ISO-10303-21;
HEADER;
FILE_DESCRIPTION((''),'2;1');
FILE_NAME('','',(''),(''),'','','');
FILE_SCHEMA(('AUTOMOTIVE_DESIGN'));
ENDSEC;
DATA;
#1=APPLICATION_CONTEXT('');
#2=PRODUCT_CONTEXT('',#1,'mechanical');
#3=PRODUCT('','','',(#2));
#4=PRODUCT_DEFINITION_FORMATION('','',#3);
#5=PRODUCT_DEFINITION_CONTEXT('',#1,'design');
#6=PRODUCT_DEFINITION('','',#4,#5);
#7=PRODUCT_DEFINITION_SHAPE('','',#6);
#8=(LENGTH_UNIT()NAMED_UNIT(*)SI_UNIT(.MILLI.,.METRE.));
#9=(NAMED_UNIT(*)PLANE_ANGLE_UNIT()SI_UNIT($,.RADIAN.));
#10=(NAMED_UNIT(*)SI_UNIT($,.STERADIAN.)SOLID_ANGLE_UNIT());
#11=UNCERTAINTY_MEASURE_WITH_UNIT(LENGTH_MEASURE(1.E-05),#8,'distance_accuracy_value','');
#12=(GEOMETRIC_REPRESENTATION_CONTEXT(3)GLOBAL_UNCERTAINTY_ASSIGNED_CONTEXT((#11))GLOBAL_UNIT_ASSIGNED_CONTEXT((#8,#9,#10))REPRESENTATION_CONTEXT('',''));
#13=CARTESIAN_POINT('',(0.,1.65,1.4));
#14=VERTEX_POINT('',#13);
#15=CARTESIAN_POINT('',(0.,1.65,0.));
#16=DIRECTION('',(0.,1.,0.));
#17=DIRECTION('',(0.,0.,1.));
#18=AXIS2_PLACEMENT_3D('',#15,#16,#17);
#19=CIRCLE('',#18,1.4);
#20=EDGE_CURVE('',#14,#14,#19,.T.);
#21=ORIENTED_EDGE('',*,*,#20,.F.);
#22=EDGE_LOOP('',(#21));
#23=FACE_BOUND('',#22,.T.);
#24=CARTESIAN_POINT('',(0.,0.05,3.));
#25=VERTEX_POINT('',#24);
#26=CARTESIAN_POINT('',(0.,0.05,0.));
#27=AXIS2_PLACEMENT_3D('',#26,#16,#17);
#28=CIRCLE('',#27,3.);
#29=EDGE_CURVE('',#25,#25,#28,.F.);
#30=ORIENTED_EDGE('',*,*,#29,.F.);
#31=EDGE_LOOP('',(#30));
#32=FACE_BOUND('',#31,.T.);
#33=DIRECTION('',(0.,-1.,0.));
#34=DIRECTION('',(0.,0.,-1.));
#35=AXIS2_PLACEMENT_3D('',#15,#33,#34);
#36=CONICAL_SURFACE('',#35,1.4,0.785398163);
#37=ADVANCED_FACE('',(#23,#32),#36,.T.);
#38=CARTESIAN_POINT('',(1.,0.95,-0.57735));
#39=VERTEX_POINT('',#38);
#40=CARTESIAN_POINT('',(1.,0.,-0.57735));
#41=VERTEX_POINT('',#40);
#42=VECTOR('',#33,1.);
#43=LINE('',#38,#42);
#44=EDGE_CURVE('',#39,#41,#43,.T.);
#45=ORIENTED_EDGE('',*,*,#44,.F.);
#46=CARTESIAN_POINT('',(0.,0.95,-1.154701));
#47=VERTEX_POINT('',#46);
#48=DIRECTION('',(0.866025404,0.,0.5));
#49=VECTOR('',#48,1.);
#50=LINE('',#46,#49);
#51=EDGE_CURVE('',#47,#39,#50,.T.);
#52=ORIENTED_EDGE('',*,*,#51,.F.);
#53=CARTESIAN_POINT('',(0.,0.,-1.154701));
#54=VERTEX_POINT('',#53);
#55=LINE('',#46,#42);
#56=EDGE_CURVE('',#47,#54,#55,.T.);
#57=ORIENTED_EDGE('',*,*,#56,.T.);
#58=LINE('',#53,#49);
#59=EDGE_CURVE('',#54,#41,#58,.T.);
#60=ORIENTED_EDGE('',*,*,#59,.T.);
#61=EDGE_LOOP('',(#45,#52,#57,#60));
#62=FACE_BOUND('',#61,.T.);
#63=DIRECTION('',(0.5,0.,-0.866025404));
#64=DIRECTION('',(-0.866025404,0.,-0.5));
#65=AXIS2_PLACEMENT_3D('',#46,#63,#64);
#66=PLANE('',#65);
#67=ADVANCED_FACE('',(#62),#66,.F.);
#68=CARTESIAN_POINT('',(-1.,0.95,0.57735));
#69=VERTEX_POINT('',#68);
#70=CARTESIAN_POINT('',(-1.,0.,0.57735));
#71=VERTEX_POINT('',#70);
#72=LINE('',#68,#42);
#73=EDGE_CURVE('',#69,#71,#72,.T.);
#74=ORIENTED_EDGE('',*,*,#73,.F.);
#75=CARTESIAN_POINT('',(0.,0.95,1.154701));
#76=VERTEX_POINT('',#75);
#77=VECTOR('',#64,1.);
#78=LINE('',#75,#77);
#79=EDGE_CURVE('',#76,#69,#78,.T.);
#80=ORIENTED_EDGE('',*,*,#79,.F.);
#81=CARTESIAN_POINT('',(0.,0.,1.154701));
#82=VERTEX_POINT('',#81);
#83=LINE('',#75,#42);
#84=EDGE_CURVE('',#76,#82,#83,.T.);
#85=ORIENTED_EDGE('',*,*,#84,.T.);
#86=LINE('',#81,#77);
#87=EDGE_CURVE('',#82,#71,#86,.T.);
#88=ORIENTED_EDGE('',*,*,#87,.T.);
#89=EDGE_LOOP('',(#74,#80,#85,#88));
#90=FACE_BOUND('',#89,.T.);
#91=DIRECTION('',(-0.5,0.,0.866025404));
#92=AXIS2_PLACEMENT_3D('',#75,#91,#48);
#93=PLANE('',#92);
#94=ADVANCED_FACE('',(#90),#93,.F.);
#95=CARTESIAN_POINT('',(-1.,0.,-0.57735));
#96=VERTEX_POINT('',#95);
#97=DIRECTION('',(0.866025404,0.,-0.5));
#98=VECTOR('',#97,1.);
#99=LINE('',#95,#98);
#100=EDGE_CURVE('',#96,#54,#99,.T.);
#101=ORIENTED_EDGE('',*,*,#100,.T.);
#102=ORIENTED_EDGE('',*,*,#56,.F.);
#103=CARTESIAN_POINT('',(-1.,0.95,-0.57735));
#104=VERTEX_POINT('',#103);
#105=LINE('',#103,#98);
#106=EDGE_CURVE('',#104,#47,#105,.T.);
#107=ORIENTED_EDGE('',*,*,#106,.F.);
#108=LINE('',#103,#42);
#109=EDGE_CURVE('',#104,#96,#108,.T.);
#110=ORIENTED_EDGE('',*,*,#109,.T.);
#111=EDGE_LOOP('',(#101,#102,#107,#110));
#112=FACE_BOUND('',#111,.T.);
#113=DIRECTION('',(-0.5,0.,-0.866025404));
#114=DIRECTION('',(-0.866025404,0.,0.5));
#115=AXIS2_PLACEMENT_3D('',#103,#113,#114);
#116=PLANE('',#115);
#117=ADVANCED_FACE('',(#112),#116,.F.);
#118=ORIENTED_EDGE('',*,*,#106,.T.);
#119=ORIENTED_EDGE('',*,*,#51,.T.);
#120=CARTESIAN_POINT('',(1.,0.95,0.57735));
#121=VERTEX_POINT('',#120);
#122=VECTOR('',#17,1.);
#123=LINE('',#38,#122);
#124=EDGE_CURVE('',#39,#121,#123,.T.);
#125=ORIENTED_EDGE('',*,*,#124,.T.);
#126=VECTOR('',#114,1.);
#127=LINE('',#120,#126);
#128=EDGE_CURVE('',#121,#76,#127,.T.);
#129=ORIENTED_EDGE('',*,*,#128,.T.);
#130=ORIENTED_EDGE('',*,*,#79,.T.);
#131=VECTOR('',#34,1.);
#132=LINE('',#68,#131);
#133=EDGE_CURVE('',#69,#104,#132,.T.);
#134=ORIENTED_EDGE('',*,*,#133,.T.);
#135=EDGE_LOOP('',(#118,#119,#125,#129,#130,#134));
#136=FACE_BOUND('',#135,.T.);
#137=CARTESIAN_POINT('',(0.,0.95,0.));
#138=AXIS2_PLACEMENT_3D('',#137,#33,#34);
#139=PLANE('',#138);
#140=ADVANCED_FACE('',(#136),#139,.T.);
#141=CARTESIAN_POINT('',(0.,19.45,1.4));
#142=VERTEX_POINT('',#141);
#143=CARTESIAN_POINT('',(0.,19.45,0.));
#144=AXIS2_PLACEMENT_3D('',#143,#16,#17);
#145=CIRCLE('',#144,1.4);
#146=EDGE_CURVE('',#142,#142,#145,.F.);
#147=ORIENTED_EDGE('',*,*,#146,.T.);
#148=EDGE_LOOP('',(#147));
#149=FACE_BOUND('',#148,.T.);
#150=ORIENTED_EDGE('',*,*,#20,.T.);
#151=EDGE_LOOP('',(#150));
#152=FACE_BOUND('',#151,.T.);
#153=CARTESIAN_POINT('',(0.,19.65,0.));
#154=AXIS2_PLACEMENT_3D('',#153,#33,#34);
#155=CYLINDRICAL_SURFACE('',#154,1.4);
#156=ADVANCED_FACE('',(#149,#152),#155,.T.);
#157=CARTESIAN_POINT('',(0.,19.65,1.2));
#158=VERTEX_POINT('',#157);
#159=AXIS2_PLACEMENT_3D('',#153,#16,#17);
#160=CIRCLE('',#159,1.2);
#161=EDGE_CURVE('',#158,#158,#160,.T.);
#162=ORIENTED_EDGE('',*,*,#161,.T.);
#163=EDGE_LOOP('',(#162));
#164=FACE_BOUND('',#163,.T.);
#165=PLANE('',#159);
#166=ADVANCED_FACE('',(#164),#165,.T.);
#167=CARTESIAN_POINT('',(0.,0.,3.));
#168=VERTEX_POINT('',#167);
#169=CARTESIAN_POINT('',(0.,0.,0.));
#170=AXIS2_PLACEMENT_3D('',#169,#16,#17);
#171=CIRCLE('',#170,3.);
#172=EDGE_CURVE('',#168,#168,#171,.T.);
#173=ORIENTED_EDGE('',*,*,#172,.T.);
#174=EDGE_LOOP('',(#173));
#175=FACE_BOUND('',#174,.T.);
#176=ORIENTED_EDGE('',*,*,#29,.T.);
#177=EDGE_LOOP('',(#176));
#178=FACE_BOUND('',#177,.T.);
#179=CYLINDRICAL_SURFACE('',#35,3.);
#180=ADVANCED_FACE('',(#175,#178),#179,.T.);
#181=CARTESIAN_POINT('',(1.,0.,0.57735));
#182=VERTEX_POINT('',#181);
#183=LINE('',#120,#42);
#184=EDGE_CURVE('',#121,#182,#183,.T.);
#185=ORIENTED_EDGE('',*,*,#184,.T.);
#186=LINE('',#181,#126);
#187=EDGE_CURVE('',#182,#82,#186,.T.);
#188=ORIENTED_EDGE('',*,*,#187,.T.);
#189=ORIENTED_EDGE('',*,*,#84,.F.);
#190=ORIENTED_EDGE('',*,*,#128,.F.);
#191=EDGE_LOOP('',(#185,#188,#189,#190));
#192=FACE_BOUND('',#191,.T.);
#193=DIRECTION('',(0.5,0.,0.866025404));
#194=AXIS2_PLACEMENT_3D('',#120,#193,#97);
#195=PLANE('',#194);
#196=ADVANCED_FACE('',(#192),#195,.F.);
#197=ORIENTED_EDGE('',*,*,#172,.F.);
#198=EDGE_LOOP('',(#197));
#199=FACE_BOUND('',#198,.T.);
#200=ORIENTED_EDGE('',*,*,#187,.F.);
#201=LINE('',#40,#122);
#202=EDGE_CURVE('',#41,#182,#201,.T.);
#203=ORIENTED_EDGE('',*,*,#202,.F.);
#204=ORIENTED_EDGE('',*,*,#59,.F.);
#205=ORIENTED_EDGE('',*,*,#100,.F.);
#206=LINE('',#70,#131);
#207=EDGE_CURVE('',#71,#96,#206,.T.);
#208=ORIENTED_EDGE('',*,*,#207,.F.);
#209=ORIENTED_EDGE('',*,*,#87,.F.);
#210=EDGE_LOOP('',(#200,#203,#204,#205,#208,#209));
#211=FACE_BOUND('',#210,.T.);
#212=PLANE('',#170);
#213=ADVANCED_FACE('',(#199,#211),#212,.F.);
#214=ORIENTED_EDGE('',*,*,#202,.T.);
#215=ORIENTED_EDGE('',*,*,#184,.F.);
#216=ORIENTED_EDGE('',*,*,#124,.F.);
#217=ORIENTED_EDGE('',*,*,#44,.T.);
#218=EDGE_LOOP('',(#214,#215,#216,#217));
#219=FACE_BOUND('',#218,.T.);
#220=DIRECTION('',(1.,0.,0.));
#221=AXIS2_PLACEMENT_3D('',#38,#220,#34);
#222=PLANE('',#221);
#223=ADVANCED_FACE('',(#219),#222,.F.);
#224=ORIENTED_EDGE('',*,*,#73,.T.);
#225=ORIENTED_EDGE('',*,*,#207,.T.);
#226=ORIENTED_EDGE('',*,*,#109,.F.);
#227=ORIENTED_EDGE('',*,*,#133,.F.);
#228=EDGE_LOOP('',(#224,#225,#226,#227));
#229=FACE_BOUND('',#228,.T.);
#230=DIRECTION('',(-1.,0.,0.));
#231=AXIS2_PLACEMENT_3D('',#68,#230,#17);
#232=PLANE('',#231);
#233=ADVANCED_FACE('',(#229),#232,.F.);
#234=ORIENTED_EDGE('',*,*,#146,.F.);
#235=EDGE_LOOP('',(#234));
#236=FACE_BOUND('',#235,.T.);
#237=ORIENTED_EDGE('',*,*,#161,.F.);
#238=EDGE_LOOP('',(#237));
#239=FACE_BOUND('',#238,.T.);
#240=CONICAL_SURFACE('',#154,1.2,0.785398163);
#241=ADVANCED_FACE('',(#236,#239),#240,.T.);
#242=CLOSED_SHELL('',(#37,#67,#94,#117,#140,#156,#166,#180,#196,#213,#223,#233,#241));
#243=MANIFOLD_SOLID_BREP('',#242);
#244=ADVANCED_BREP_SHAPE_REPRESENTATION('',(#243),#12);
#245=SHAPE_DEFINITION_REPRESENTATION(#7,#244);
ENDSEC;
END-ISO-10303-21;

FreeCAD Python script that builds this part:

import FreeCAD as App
import Part
import Sketcher
Q = App.Units.Quantity


def edges_at(feature, points):
    """Names of the edges that pass closest to the given points."""
    edges = feature.Shape.Edges
    near = lambda p: min(range(len(edges)), key=lambda i: edges[i].distToShape(Part.Vertex(*p))[0])
    return sorted({f"Edge{near(p) + 1}" for p in points})


def add_polygon(sketch, points):
    """Adds a closed chain of lines whose ends are joined by coincident constraints."""
    first, n = sketch.GeometryCount, len(points)
    for a, b in zip(points, points[1:] + points[:1]):
        sketch.addGeometry(Part.LineSegment(App.Vector(*a, 0), App.Vector(*b, 0)), False)
    for i in range(n):
        sketch.addConstraint(Sketcher.Constraint("Coincident", first + i, 2, first + (i + 1) % n, 1))

doc = App.newDocument("Part")
params = doc.addObject("Spreadsheet::Sheet", "Params")
for row, (alias, value) in enumerate([
    ("sketch1_diameter", "6 mm"),
    ("pad1_length", "1.65 mm"),
    ("chamfer_size", "1.6 mm"),
    ("pocket1_length", "0.95 mm"),
    ("sketch3_diameter", "2.8 mm"),
    ("pad2_length", "18 mm"),
    ("chamfer2_size", "0.2 mm"),
], start=1):
    params.set(f"A{row}", alias)
    params.set(f"B{row}", "=" + value)
    params.setAlias(f"B{row}", alias)

body = doc.addObject("PartDesign::Body", "Body")

# Sketch on XZ plane
sketch1 = body.newObject("Sketcher::SketchObject", "Sketch")
sketch1.AttachmentSupport = (doc.getObject("XZ_Plane"), [""])
sketch1.MapMode = "FlatFace"
sketch1.addGeometry(Part.Circle(App.Vector(0, 0, 0), App.Vector(0, 0, 1), 3), False)
sketch1.addConstraint([
    Sketcher.Constraint("Coincident", 0, 3, -1, 1),
    Sketcher.Constraint("Diameter", 0, 6.0),
])
sketch1.setExpression("Constraints[1]", "Params.sketch1_diameter")
pad1 = body.newObject("PartDesign::Pad", "Pad")
pad1.Profile = sketch1
pad1.setExpression("Length", "Params.pad1_length")
pad1.Reversed = True
doc.recompute()

chamfer = body.newObject("PartDesign::Chamfer", "Chamfer")
chamfer.Base = (pad1, edges_at(pad1, [(0, 1.65, -3)]))
chamfer.setExpression("Size", "Params.chamfer_size")

# Sketch on XZ plane
sketch2 = body.newObject("Sketcher::SketchObject", "Sketch001")
sketch2.AttachmentSupport = (doc.getObject("XZ_Plane"), [""])
sketch2.MapMode = "FlatFace"
add_polygon(sketch2, [(1, -0.57735), (1, 0.57735), (0, 1.154701), (-1, 0.57735), (-1, -0.57735), (0, -1.154701)])  # lines 0-5
sketch2.addConstraint([
    Sketcher.Constraint("Vertical", 0),
    Sketcher.Constraint("Vertical", 3),
    Sketcher.Constraint("Symmetric", 0, 2, 3, 2, -1, 1),
    Sketcher.Constraint("Symmetric", 1, 2, 4, 2, -1, 1),
    Sketcher.Constraint("PointOnObject", 1, 2, -2),
    Sketcher.Constraint("Parallel", 2, 5),
    Sketcher.Constraint("Horizontal", 0, 2, 2, 2),
    Sketcher.Constraint("Angle", 1, Q("150 deg")),
    Sketcher.Constraint("DistanceX", -1, 1, 0, 2, 1.0),
    Sketcher.Constraint("DistanceY", 0, 1, 0, 2, 1.154701),
])
pocket1 = body.newObject("PartDesign::Pocket", "Pocket")
pocket1.Profile = sketch2
pocket1.setExpression("Length", "Params.pocket1_length")

# Sketch on XZ plane
sketch3 = body.newObject("Sketcher::SketchObject", "Sketch002")
sketch3.AttachmentSupport = (doc.getObject("XZ_Plane"), [""])
sketch3.MapMode = "FlatFace"
sketch3.AttachmentOffset = App.Placement(App.Vector(0, 0, -1.65), App.Rotation())
sketch3.addGeometry(Part.Circle(App.Vector(0, 0, 0), App.Vector(0, 0, 1), 1.4), False)
sketch3.addConstraint([
    Sketcher.Constraint("Coincident", 0, 3, -1, 1),
    Sketcher.Constraint("Diameter", 0, 2.8),
])
sketch3.setExpression("Constraints[1]", "Params.sketch3_diameter")
pad2 = body.newObject("PartDesign::Pad", "Pad001")
pad2.Profile = sketch3
pad2.setExpression("Length", "Params.pad2_length")
pad2.Reversed = True
doc.recompute()

chamfer2 = body.newObject("PartDesign::Chamfer", "Chamfer001")
chamfer2.Base = (pad2, edges_at(pad2, [(0, 19.65, -1.4)]))
chamfer2.setExpression("Size", "Params.chamfer2_size")

doc.recompute()
